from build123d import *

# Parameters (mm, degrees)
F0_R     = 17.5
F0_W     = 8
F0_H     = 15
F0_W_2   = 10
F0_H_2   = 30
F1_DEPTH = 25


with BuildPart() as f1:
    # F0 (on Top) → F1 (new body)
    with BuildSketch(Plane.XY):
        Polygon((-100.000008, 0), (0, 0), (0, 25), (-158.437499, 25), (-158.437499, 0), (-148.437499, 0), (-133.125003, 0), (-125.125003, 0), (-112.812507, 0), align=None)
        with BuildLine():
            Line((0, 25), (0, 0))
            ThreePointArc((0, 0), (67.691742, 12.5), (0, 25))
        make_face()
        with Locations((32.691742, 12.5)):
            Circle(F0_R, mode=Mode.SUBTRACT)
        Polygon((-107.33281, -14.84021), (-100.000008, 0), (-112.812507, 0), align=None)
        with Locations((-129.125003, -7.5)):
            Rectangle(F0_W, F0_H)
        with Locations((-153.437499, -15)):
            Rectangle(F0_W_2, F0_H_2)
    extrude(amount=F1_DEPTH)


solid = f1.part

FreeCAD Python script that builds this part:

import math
import FreeCAD as App
import Part
import Sketcher

V = App.Vector
Q = App.Units.Quantity

doc = App.newDocument("Part")
body = doc.addObject("PartDesign::Body", "Body")

sketch1 = doc.addObject("Sketcher::SketchObject", "Sketch")
body.addObject(sketch1)
sketch1.AttachmentSupport = (doc.XY_Plane, [""])
sketch1.MapMode = "FlatFace"
sketch1.addGeometry([
    Part.LineSegment(V(0, 25, 0), V(-158.437499, 25, 0)),
    Part.LineSegment(V(-158.437499, 25, 0), V(-158.437499, -30, 0)),
    Part.LineSegment(V(-158.437499, -30, 0), V(-148.437499, -30, 0)),
    Part.LineSegment(V(-148.437499, -30, 0), V(-148.437499, 0, 0)),
    Part.LineSegment(V(-148.437499, 0, 0), V(-133.125003, 0, 0)),
    Part.LineSegment(V(-133.125003, 0, 0), V(-133.125003, -15, 0)),
    Part.LineSegment(V(-133.125003, -15, 0), V(-125.125003, -15, 0)),
    Part.LineSegment(V(-125.125003, -15, 0), V(-125.125003, 0, 0)),
    Part.LineSegment(V(-125.125003, 0, 0), V(-112.812507, 0, 0)),
    Part.LineSegment(V(-112.812507, 0, 0), V(-107.33281, -14.84021, 0)),
    Part.LineSegment(V(-107.33281, -14.84021, 0), V(-100.000008, 0, 0)),
    Part.LineSegment(V(-100.000008, 0, 0), V(0, 0, 0)),
    Part.ArcOfCircle(Part.Circle(V(32.691742, 12.5, 0), V(0, 0, 1), 35), math.radians(-159.075168), math.radians(159.075168)),
    Part.Circle(V(32.691742, 12.5, 0), V(0, 0, 1), 17.5),
], False)
sketch1.addConstraint([
    Sketcher.Constraint("Coincident", 0, 2, 1, 1),
    Sketcher.Constraint("Coincident", 1, 2, 2, 1),
    Sketcher.Constraint("Coincident", 2, 2, 3, 1),
    Sketcher.Constraint("Coincident", 3, 2, 4, 1),
    Sketcher.Constraint("Coincident", 4, 2, 5, 1),
    Sketcher.Constraint("Coincident", 5, 2, 6, 1),
    Sketcher.Constraint("Coincident", 6, 2, 7, 1),
    Sketcher.Constraint("Coincident", 7, 2, 8, 1),
    Sketcher.Constraint("Coincident", 8, 2, 9, 1),
    Sketcher.Constraint("Coincident", 9, 2, 10, 1),
    Sketcher.Constraint("Coincident", 10, 2, 11, 1),
    Sketcher.Constraint("Coincident", 11, 2, 12, 1),
    Sketcher.Constraint("Coincident", 12, 2, 0, 1),
    Sketcher.Constraint("Horizontal", 0),
    Sketcher.Constraint("Vertical", 1),
    Sketcher.Constraint("Horizontal", 2),
    Sketcher.Constraint("Vertical", 3),
    Sketcher.Constraint("Horizontal", 4),
    Sketcher.Constraint("Vertical", 5),
    Sketcher.Constraint("Horizontal", 6),
    Sketcher.Constraint("Vertical", 7),
    Sketcher.Constraint("Horizontal", 8),
    Sketcher.Constraint("Horizontal", 11),
    Sketcher.Constraint("Coincident", 11, 2, -1, 1),
    Sketcher.Constraint("Coincident", 13, 3, 12, 3),
    Sketcher.Constraint("PointOnObject", 3, 2, -1),
    Sketcher.Constraint("PointOnObject", 7, 2, -1),
    Sketcher.Constraint("PointOnObject", 12, 2, -2),
    Sketcher.Constraint("Diameter", 13, Q("35 mm")),
    Sketcher.Constraint("Radius", 12, Q("35 mm")),
    Sketcher.Constraint("DistanceX", 2, 1, 2, 2, Q("10 mm")),
    Sketcher.Constraint("DistanceX", 6, 1, 6, 2, Q("8 mm")),
    Sketcher.Constraint("DistanceY", 1, 2, 1, 1, Q("55 mm")),
    Sketcher.Constraint("DistanceY", 3, 1, 3, 2, Q("30 mm")),
    Sketcher.Constraint("DistanceY", 5, 2, 5, 1, Q("15 mm")),
    Sketcher.Constraint("Distance", 10, Q("16.553 mm")),
    Sketcher.Constraint("DistanceX", 0, 2, 0, 1, Q("158.437499 mm")),
    Sketcher.Constraint("DistanceX", 8, 2, 10, 2, Q("12.812499 mm")),
    Sketcher.Constraint("DistanceX", 4, 1, 4, 2, Q("15.312496 mm")),
    Sketcher.Constraint("DistanceX", 8, 1, 8, 2, Q("12.312496 mm")),
    Sketcher.Constraint("DistanceX", 9, 2, -1, 1, Q("107.33281 mm")),
])
pad1 = doc.addObject("PartDesign::Pad", "Pad")
body.addObject(pad1)
pad1.Profile = sketch1
pad1.Length = 25

doc.recompute()
